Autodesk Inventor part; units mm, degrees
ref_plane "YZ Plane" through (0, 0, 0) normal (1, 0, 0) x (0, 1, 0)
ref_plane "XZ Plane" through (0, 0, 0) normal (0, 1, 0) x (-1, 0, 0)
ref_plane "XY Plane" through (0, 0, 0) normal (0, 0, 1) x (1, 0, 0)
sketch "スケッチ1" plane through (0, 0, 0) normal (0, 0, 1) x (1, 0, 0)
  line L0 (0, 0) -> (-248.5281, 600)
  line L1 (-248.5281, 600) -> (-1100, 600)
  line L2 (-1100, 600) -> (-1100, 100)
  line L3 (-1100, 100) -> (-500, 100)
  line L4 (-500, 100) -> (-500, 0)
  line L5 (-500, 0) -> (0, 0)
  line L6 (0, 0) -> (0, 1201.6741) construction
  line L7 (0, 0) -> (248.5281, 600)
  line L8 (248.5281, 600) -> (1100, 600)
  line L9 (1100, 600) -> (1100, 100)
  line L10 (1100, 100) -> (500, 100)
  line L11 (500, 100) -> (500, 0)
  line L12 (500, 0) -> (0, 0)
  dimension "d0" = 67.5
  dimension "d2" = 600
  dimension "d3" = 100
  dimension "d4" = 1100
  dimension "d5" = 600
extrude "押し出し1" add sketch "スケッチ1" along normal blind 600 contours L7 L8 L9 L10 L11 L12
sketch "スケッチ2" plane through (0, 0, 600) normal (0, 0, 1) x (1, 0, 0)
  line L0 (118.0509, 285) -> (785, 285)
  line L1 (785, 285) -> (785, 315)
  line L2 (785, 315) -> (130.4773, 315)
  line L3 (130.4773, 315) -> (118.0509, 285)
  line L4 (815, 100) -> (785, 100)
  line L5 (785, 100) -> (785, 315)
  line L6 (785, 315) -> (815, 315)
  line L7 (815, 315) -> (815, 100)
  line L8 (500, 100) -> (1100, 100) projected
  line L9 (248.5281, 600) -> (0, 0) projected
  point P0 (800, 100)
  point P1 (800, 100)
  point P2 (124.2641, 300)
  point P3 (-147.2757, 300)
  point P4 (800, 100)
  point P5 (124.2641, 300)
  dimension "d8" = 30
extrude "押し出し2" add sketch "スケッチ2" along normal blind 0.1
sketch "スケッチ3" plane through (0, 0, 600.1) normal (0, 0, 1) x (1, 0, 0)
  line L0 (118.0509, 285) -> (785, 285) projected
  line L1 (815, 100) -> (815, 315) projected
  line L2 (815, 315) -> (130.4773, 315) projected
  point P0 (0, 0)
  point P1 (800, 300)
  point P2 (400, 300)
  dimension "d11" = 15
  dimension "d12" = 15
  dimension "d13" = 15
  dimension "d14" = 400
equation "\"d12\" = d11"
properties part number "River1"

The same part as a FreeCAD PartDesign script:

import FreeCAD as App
import Part
import Sketcher

V = App.Vector
Q = App.Units.Quantity


def add_polygon(sketch, points):
    """Adds a closed chain of lines whose ends are joined by coincident constraints."""
    first, n = sketch.GeometryCount, len(points)
    for a, b in zip(points, points[1:] + points[:1]):
        sketch.addGeometry(Part.LineSegment(App.Vector(*a, 0), App.Vector(*b, 0)), False)
    for i in range(n):
        sketch.addConstraint(Sketcher.Constraint("Coincident", first + i, 2, first + (i + 1) % n, 1))

doc = App.newDocument("Part")
body = doc.addObject("PartDesign::Body", "Body")

# Sketch on XY plane
sketch1 = body.newObject("Sketcher::SketchObject", "Sketch")
sketch1.AttachmentSupport = (doc.getObject("XY_Plane"), [""])
sketch1.MapMode = "FlatFace"
add_polygon(sketch1, [(249, 600), (0, 0), (500, 0), (500, 100), (1100, 100), (1100, 600)])  # lines 0-5
sketch1.addConstraint(Sketcher.Constraint("Horizontal", 1))
sketch1.addConstraint(Sketcher.Constraint("Vertical", 2))
sketch1.addConstraint(Sketcher.Constraint("Horizontal", 3))
sketch1.addConstraint(Sketcher.Constraint("Vertical", 4))
sketch1.addConstraint(Sketcher.Constraint("Horizontal", 5))
sketch1.addConstraint(Sketcher.Constraint("Coincident", 0, 2, -1, 1))
sketch1.addConstraint(Sketcher.Constraint("Equal", 1, 4))
sketch1.addConstraint(Sketcher.Constraint("DistanceX", 3, 1, 3, 2, 600.0))
sketch1.addConstraint(Sketcher.Constraint("DistanceY", 2, 1, 2, 2, 100.0))
sketch1.addConstraint(Sketcher.Constraint("DistanceX", -1, 1, 3, 2, 1100.0))
sketch1.addConstraint(Sketcher.Constraint("Angle", 0, Q("-112.5 deg")))
pad1 = body.newObject("PartDesign::Pad", "Pad")
pad1.Profile = sketch1
pad1.Length = 600

# Sketch on XY plane
sketch2 = body.newObject("Sketcher::SketchObject", "Sketch001")
sketch2.AttachmentSupport = (doc.getObject("XY_Plane"), [""])
sketch2.MapMode = "FlatFace"
sketch2.AttachmentOffset = App.Placement(V(0, 0, 600), App.Rotation())
add_polygon(sketch2, [(130, 315), (118, 285), (785, 285), (785, 100), (815, 100), (815, 315)])  # lines 0-5
sketch2.addConstraint(Sketcher.Constraint("Horizontal", 1))
sketch2.addConstraint(Sketcher.Constraint("Vertical", 2))
sketch2.addConstraint(Sketcher.Constraint("Horizontal", 3))
sketch2.addConstraint(Sketcher.Constraint("Vertical", 4))
sketch2.addConstraint(Sketcher.Constraint("Horizontal", 5))
sketch2.addConstraint(Sketcher.Constraint("DistanceX", 3, 1, 3, 2, 30.0))
sketch2.addConstraint(Sketcher.Constraint("DistanceY", 1, 2, 4, 2, 30.0))
sketch2.addConstraint(Sketcher.Constraint("DistanceY", 2, 2, 2, 1, 185.0))
sketch2.addConstraint(Sketcher.Constraint("DistanceY", -1, 1, 0, 2, 285.0))
sketch2.addConstraint(Sketcher.Constraint("DistanceX", -1, 1, 1, 2, 785.0))
sketch2.addConstraint(Sketcher.Constraint("Angle", 0, Q("-112.5 deg")))
sketch2.addConstraint(Sketcher.Constraint("DistanceX", 1, 1, 1, 2, 666.949))
pad2 = body.newObject("PartDesign::Pad", "Pad001")
pad2.Profile = sketch2
pad2.Length = 0.1

doc.recompute()
